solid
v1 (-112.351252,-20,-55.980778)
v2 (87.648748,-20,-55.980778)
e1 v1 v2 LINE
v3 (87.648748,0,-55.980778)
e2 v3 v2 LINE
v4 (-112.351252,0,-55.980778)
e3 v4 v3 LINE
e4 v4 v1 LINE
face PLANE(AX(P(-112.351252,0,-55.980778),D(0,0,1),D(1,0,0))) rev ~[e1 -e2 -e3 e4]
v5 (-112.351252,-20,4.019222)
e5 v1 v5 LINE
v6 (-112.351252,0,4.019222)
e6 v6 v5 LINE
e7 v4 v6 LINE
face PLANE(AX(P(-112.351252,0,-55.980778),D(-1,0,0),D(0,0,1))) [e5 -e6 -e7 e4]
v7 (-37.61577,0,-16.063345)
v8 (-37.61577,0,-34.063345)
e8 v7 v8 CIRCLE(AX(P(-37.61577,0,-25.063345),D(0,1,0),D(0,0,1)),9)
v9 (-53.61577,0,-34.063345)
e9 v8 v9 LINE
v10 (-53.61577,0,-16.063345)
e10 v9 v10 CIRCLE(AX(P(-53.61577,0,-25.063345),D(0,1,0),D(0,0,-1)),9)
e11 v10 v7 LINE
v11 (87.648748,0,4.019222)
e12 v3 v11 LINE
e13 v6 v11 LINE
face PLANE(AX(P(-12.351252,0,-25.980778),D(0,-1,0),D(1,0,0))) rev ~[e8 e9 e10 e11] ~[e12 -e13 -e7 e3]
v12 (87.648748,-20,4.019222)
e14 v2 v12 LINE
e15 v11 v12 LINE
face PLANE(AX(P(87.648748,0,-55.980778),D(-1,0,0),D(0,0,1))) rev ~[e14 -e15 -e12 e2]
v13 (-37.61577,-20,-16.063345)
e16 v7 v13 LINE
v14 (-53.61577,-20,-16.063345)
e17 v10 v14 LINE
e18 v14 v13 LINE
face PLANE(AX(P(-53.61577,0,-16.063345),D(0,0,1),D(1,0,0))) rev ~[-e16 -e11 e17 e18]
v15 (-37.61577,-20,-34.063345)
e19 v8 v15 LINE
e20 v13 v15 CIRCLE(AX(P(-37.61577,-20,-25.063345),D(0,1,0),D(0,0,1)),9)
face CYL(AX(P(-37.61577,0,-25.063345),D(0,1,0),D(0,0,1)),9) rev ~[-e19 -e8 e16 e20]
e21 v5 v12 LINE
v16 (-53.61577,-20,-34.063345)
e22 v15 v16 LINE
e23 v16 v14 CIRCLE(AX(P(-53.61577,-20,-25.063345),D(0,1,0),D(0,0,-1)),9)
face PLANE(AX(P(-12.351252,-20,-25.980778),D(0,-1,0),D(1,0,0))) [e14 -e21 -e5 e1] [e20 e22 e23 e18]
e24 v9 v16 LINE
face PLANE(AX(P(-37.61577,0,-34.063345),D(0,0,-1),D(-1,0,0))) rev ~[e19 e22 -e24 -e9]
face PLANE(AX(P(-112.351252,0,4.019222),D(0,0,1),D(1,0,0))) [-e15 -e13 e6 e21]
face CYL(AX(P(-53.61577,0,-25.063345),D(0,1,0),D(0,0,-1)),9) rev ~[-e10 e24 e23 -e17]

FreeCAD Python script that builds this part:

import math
import FreeCAD as App
import Part
import Sketcher
from FreeCAD import Vector

doc = App.newDocument("Part")
body = doc.addObject("PartDesign::Body", "Body")

sketch1 = doc.addObject("Sketcher::SketchObject", "Sketch")
body.addObject(sketch1)
sketch1.AttachmentSupport = (doc.XZ_Plane, [""])
sketch1.MapMode = "FlatFace"
sketch1.addGeometry(Part.LineSegment(Vector(-112, 4, 0), Vector(-112, -56, 0)), False)
sketch1.addGeometry(Part.LineSegment(Vector(-112, -56, 0), Vector(88, -56, 0)), False)
sketch1.addGeometry(Part.LineSegment(Vector(88, -56, 0), Vector(88, 4, 0)), False)
sketch1.addGeometry(Part.LineSegment(Vector(88, 4, 0), Vector(-112, 4, 0)), False)
sketch1.addGeometry(Part.ArcOfCircle(Part.Circle(Vector(-54, -25, 0), Vector(0, 0, 1), 9), math.radians(90), math.radians(270)), False)
sketch1.addGeometry(Part.LineSegment(Vector(-54, -16, 0), Vector(-38, -16, 0)), False)
sketch1.addGeometry(Part.ArcOfCircle(Part.Circle(Vector(-38, -25, 0), Vector(0, 0, 1), 9), math.radians(-90), math.radians(90)), False)
sketch1.addGeometry(Part.LineSegment(Vector(-38, -34, 0), Vector(-54, -34, 0)), False)
sketch1.addConstraint(Sketcher.Constraint("Coincident", 0, 2, 1, 1))
sketch1.addConstraint(Sketcher.Constraint("Coincident", 1, 2, 2, 1))
sketch1.addConstraint(Sketcher.Constraint("Coincident", 2, 2, 3, 1))
sketch1.addConstraint(Sketcher.Constraint("Coincident", 3, 2, 0, 1))
sketch1.addConstraint(Sketcher.Constraint("Tangent", 4, 1, 5, 1))
sketch1.addConstraint(Sketcher.Constraint("Tangent", 5, 2, 6, 2))
sketch1.addConstraint(Sketcher.Constraint("Tangent", 6, 1, 7, 1))
sketch1.addConstraint(Sketcher.Constraint("Tangent", 7, 2, 4, 2))
sketch1.addConstraint(Sketcher.Constraint("Vertical", 0))
sketch1.addConstraint(Sketcher.Constraint("Horizontal", 1))
sketch1.addConstraint(Sketcher.Constraint("Vertical", 2))
sketch1.addConstraint(Sketcher.Constraint("Horizontal", 3))
sketch1.addConstraint(Sketcher.Constraint("Horizontal", 5))
sketch1.addConstraint(Sketcher.Constraint("Horizontal", 7))
sketch1.addConstraint(Sketcher.Constraint("Radius", 4, 9.0))
sketch1.addConstraint(Sketcher.Constraint("DistanceX", 1, 1, 1, 2, 200.0))
sketch1.addConstraint(Sketcher.Constraint("DistanceX", 5, 1, 5, 2, 16.0))
sketch1.addConstraint(Sketcher.Constraint("DistanceY", 0, 2, 0, 1, 60.0))
sketch1.addConstraint(Sketcher.Constraint("DistanceX", 4, 3, -1, 1, 53.61577))
sketch1.addConstraint(Sketcher.Constraint("DistanceX", 4, 3, 1, 2, 141.264518))
sketch1.addConstraint(Sketcher.Constraint("DistanceY", 4, 3, -1, 1, 25.063345))
sketch1.addConstraint(Sketcher.Constraint("DistanceY", 0, 2, -1, 1, 55.980778))
pad1 = doc.addObject("PartDesign::Pad", "Pad")
body.addObject(pad1)
pad1.Profile = sketch1
pad1.Length = 20

doc.recompute()
